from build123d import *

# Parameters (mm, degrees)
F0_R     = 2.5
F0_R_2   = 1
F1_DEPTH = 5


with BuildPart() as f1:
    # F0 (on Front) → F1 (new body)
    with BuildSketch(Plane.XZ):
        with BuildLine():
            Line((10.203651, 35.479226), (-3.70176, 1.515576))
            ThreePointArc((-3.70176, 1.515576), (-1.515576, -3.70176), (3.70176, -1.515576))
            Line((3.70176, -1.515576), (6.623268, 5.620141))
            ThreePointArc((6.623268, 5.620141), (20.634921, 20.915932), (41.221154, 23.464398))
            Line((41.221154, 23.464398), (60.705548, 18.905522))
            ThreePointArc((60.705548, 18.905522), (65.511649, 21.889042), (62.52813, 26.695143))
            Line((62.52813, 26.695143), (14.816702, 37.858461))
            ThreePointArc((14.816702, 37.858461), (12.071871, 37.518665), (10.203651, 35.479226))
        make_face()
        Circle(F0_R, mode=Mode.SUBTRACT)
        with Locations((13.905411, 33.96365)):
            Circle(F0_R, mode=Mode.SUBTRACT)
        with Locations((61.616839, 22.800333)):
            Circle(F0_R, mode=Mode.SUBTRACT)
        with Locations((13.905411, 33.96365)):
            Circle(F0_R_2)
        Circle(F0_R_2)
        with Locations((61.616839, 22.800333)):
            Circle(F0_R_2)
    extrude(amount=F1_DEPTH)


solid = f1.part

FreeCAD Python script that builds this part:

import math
import FreeCAD as App
import Part
import Sketcher
Q = App.Units.Quantity

doc = App.newDocument("Part")
body = doc.addObject("PartDesign::Body", "Body")
body.AllowCompound = True

sketch1 = body.newObject("Sketcher::SketchObject", "Sketch")
sketch1.AttachmentSupport = (doc.getObject("XZ_Plane"), [""])
sketch1.MapMode = "FlatFace"
sketch1.addGeometry([
    Part.LineSegment(App.Vector(10.2, 35.5, 0), App.Vector(-3.7, 1.5, 0)),
    Part.ArcOfCircle(Part.Circle(App.Vector(0, 0, 0), App.Vector(0, 0, 1), 4), math.radians(158), math.radians(338)),
    Part.LineSegment(App.Vector(3.7, -1.5, 0), App.Vector(6.6, 5.6, 0)),
    Part.ArcOfCircle(Part.Circle(App.Vector(34.4, -5.7, 0), App.Vector(0, 0, 1), 30), math.radians(77), math.radians(158)),
    Part.LineSegment(App.Vector(41.2, 23.5, 0), App.Vector(60.7, 18.9, 0)),
    Part.ArcOfCircle(Part.Circle(App.Vector(61.6, 22.8, 0), App.Vector(0, 0, 1), 4), math.radians(-103), math.radians(77)),
    Part.LineSegment(App.Vector(62.5, 26.7, 0), App.Vector(14.8, 37.9, 0)),
    Part.ArcOfCircle(Part.Circle(App.Vector(13.9, 34, 0), App.Vector(0, 0, 1), 4), math.radians(77), math.radians(158)),
    Part.Circle(App.Vector(0, 0, 0), App.Vector(0, 0, 1), 2.5),
    Part.Circle(App.Vector(13.9, 34, 0), App.Vector(0, 0, 1), 2.5),
    Part.Circle(App.Vector(61.6, 22.8, 0), App.Vector(0, 0, 1), 2.5),
    Part.Circle(App.Vector(13.9, 34, 0), App.Vector(0, 0, 1), 1),
    Part.Circle(App.Vector(0, 0, 0), App.Vector(0, 0, 1), 1),
    Part.Circle(App.Vector(61.6, 22.8, 0), App.Vector(0, 0, 1), 1),
], False)
sketch1.addConstraint([
    Sketcher.Constraint("Tangent", 0, 2, 1, 1),
    Sketcher.Constraint("Tangent", 1, 2, 2, 1),
    Sketcher.Constraint("Tangent", 2, 2, 3, 2),
    Sketcher.Constraint("Tangent", 3, 1, 4, 1),
    Sketcher.Constraint("Tangent", 4, 2, 5, 1),
    Sketcher.Constraint("Tangent", 5, 2, 6, 1),
    Sketcher.Constraint("Tangent", 6, 2, 7, 1),
    Sketcher.Constraint("Tangent", 7, 2, 0, 1),
    Sketcher.Constraint("Coincident", 1, 3, -1, 1),
    Sketcher.Constraint("Coincident", 8, 3, -1, 1),
    Sketcher.Constraint("Coincident", 12, 3, -1, 1),
    Sketcher.Constraint("Coincident", 9, 3, 7, 3),
    Sketcher.Constraint("Coincident", 10, 3, 5, 3),
    Sketcher.Constraint("Coincident", 11, 3, 7, 3),
    Sketcher.Constraint("Coincident", 13, 3, 5, 3),
    Sketcher.Constraint("Equal", 1, 5),
    Sketcher.Constraint("Equal", 5, 7),
    Sketcher.Constraint("Equal", 8, 9),
    Sketcher.Constraint("Equal", 9, 10),
    Sketcher.Constraint("Equal", 11, 12),
    Sketcher.Constraint("Equal", 12, 13),
    Sketcher.Constraint("Parallel", 0, 2),
    Sketcher.Constraint("Parallel", 4, 6),
    Sketcher.Constraint("Diameter", 8, Q("5 mm")),
    Sketcher.Constraint("Diameter", 11, Q("2 mm")),
    Sketcher.Constraint("Radius", 1, Q("4 mm")),
    Sketcher.Constraint("Radius", 3, Q("30.000001 mm")),
    Sketcher.Constraint("Distance", 6, Q("49 mm")),
    Sketcher.Constraint("Distance", 0, Q("36.7 mm")),
    Sketcher.Constraint("DistanceX", -1, 1, 6, 2, Q("14.816702 mm")),
    Sketcher.Constraint("Distance", 2, Q("7.71062 mm")),
])
pad1 = body.newObject("PartDesign::Pad", "Pad")
pad1.Profile = sketch1
pad1.Length = 5

doc.recompute()
